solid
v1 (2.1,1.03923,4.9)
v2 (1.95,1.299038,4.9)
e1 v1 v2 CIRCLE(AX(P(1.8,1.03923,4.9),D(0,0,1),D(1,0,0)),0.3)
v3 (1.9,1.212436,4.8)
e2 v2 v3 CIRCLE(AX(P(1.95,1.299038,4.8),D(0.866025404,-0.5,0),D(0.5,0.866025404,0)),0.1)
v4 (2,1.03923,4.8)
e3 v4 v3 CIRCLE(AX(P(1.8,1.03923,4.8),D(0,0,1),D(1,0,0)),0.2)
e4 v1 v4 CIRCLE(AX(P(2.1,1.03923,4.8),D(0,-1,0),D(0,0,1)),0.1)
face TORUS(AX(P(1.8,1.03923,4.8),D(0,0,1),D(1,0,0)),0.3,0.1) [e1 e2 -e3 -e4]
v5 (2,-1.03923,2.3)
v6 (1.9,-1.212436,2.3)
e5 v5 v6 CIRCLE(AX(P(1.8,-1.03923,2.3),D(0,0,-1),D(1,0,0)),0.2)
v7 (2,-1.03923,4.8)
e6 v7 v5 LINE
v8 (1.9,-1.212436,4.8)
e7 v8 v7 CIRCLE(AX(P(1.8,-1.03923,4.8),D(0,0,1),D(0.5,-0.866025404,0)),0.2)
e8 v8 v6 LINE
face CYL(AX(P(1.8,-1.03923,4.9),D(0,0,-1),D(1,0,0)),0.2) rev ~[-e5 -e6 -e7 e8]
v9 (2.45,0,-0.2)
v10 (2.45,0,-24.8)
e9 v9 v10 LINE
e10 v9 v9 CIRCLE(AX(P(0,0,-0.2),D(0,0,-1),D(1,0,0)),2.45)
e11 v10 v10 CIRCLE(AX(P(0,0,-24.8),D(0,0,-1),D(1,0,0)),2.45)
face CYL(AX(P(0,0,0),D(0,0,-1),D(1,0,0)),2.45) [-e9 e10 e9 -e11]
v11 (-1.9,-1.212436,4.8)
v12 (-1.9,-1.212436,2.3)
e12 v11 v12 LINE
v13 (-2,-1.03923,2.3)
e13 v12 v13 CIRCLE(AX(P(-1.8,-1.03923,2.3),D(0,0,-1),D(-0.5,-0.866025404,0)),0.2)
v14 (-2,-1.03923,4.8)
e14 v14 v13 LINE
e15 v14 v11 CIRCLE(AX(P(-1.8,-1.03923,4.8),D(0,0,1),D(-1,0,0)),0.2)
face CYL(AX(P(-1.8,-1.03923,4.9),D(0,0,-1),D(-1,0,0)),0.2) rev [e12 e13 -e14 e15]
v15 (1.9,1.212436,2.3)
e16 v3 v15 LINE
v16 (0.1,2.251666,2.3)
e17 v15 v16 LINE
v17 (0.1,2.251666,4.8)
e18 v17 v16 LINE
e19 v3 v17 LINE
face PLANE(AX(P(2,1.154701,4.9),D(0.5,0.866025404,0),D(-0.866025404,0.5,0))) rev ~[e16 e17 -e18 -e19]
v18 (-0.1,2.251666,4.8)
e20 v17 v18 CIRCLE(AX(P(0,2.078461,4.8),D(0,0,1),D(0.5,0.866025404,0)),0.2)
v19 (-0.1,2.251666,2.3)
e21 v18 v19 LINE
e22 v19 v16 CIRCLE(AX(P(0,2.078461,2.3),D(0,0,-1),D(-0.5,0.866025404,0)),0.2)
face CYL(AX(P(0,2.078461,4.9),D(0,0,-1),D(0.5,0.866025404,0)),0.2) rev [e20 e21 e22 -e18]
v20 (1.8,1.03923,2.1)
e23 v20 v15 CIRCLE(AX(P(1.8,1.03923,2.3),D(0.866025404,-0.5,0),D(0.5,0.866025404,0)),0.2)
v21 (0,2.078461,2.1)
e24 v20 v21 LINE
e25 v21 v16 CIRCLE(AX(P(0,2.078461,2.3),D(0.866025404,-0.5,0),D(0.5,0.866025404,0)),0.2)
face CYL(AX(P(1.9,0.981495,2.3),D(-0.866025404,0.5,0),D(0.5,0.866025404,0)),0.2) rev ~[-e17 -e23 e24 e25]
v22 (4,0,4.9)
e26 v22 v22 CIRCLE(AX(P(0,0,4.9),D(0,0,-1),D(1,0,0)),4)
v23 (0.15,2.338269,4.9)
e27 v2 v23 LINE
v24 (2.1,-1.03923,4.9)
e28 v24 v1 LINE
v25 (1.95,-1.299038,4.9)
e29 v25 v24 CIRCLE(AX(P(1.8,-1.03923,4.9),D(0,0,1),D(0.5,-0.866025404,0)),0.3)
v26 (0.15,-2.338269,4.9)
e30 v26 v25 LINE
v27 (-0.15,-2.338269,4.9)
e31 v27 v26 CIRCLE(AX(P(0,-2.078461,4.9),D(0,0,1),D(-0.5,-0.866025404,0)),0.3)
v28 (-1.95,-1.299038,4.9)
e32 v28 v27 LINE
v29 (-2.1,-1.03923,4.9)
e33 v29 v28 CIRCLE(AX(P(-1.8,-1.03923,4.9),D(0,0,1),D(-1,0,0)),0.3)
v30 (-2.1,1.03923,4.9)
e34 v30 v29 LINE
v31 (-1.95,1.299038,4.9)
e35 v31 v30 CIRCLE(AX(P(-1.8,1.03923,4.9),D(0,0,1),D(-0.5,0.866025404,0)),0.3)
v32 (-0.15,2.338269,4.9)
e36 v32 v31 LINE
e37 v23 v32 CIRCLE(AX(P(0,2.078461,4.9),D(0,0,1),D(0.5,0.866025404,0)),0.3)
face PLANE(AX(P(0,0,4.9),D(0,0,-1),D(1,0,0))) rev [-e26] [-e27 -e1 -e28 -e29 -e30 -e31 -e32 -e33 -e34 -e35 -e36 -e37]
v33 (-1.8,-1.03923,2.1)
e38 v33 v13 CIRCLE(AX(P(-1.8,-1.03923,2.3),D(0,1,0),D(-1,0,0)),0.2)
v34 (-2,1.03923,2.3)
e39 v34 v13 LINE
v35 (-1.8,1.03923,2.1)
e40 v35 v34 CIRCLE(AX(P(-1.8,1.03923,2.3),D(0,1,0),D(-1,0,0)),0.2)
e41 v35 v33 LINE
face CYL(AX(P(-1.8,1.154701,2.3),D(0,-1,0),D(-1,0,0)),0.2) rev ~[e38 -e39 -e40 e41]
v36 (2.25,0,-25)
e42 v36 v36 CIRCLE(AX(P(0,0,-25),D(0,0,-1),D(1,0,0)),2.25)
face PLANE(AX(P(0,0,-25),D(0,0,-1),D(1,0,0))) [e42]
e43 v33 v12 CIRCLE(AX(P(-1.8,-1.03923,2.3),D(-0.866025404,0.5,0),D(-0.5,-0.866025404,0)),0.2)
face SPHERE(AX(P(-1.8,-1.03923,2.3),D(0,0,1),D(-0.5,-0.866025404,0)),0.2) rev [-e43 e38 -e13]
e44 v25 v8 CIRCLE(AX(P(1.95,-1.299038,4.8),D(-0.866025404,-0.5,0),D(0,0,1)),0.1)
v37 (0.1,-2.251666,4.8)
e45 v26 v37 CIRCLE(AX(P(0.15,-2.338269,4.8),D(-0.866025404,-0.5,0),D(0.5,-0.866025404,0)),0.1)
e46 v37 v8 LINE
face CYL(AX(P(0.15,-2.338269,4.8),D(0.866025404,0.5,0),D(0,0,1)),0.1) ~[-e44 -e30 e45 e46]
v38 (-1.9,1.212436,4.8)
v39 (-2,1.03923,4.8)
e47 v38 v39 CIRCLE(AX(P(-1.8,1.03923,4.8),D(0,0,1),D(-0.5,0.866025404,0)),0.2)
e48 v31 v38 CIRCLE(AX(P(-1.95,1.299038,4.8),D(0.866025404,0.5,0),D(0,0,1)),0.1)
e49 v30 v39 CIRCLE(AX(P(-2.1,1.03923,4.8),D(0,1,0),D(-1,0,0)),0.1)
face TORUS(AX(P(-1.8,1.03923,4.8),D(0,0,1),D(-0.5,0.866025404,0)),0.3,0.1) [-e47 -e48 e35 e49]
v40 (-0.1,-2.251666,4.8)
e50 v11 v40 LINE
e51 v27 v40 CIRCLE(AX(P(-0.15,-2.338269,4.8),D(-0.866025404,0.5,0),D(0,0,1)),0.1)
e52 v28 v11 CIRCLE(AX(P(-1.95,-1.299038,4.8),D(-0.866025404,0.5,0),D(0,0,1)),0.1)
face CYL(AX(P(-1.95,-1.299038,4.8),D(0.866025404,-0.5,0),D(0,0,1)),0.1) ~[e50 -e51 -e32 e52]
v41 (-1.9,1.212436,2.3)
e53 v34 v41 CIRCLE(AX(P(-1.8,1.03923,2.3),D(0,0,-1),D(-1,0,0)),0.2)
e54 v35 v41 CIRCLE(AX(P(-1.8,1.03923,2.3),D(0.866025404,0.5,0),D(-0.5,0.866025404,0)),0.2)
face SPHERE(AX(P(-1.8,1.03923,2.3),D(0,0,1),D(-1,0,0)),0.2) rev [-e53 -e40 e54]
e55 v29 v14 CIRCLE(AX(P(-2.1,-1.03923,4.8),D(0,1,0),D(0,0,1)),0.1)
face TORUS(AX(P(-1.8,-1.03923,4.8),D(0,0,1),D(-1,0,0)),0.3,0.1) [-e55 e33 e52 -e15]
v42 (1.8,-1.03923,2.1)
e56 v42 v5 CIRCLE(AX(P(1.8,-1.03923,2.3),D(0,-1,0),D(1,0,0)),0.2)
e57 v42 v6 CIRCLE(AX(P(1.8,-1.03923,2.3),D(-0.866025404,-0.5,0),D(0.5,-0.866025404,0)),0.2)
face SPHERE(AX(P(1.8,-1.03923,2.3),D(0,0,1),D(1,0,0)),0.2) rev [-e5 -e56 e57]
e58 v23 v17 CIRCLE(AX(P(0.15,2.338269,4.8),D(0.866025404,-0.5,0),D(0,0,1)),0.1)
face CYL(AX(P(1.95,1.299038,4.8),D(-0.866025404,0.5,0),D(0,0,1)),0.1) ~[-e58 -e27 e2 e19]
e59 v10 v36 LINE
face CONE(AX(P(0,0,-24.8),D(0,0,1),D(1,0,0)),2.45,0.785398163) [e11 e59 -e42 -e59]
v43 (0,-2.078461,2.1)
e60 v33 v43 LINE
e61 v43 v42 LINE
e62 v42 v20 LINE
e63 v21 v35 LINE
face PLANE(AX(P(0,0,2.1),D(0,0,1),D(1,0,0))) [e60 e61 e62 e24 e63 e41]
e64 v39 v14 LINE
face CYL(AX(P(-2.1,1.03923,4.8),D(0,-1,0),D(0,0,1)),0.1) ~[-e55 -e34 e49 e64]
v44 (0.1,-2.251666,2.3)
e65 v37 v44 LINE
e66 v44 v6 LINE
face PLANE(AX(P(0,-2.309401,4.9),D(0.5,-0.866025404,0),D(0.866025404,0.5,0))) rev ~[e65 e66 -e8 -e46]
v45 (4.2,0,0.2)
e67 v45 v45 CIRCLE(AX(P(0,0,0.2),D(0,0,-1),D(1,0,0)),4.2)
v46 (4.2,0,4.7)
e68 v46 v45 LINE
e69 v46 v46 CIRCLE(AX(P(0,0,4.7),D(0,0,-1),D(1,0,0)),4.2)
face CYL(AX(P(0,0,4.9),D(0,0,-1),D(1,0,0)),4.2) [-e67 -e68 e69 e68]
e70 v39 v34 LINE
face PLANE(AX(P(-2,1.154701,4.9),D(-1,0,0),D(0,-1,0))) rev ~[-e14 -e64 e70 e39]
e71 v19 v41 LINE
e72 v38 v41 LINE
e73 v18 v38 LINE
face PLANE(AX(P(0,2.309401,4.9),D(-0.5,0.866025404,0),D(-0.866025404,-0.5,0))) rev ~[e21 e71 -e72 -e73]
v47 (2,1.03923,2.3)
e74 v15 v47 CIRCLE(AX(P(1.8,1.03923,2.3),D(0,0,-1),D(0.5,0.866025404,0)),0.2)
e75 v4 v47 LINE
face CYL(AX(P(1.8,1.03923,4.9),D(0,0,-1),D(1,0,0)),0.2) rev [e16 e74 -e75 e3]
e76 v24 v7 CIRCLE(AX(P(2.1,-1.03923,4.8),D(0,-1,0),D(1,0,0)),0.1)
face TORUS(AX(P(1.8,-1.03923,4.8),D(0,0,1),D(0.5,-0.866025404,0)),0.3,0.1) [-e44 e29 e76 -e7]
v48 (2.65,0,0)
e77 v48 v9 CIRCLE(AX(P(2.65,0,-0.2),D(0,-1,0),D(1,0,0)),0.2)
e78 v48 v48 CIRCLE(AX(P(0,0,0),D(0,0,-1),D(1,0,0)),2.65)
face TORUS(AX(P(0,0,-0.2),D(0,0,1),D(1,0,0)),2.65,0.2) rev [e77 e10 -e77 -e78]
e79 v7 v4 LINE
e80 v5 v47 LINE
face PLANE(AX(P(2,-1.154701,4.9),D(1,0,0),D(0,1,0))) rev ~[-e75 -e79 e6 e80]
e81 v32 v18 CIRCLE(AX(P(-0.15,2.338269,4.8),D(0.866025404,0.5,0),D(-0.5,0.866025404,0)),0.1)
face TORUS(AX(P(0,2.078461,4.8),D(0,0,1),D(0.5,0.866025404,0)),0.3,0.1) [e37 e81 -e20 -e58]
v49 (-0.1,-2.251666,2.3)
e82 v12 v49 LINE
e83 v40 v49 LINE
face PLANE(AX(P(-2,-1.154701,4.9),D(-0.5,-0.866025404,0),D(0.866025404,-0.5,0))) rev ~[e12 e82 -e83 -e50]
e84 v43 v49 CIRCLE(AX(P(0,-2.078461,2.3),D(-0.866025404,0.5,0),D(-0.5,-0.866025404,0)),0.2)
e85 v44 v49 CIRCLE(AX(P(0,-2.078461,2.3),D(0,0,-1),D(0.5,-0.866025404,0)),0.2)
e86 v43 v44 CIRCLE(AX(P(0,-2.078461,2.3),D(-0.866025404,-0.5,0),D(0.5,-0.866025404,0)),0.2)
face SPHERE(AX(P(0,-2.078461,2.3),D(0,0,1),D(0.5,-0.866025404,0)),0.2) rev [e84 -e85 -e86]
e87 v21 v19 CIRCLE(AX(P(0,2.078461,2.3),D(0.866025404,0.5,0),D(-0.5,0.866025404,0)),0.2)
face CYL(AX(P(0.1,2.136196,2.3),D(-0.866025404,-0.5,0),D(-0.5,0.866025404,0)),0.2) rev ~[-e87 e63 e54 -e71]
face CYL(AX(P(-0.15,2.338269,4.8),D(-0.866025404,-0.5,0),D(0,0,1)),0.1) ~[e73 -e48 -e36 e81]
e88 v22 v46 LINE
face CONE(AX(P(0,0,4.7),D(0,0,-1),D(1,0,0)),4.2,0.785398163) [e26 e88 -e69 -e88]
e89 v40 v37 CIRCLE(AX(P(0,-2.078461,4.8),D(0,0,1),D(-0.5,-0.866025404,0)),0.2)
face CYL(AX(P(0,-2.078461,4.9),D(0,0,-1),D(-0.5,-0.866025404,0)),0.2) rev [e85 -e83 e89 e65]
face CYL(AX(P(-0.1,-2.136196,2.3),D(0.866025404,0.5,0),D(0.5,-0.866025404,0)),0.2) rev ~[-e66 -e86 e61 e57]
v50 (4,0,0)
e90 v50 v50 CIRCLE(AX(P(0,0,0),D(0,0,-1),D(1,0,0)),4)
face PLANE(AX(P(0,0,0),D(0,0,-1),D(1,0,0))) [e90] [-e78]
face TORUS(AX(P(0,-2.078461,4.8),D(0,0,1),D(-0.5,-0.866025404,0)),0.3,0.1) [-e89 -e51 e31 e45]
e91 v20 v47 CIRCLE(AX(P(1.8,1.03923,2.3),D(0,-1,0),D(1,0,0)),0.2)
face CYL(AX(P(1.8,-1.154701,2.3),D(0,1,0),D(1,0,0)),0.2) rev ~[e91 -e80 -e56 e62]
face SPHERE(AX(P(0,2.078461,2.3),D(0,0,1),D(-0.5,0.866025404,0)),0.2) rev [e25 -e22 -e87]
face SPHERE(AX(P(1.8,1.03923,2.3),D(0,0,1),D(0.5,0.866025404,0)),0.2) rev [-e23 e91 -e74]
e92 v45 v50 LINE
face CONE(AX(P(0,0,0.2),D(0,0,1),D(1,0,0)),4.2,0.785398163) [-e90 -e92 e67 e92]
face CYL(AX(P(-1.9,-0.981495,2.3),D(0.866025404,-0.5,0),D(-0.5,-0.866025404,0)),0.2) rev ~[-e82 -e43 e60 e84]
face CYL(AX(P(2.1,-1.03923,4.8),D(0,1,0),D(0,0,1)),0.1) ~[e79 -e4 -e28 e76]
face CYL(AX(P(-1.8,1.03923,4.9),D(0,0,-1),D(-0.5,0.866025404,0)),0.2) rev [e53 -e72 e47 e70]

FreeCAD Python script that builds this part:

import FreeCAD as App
import Part
import Sketcher

V = App.Vector
Q = App.Units.Quantity


def edges_at(feature, points):
    """Names of the edges that pass closest to the given points."""
    edges = feature.Shape.Edges
    near = lambda p: min(range(len(edges)), key=lambda i: edges[i].distToShape(Part.Vertex(*p))[0])
    return sorted({f"Edge{near(p) + 1}" for p in points})


def add_polygon(sketch, points):
    """Adds a closed chain of lines whose ends are joined by coincident constraints."""
    first, n = sketch.GeometryCount, len(points)
    for a, b in zip(points, points[1:] + points[:1]):
        sketch.addGeometry(Part.LineSegment(App.Vector(*a, 0), App.Vector(*b, 0)), False)
    for i in range(n):
        sketch.addConstraint(Sketcher.Constraint("Coincident", first + i, 2, first + (i + 1) % n, 1))

doc = App.newDocument("Part")
body = doc.addObject("PartDesign::Body", "Body")

# Sketch on YZ plane
sketch1 = body.newObject("Sketcher::SketchObject", "Sketch")
sketch1.AttachmentSupport = (doc.getObject("YZ_Plane"), [""])
sketch1.MapMode = "FlatFace"
add_polygon(sketch1, [(4.2, 4.9), (0, 4.9), (0, -25), (2.5, -25), (2.5, 0), (4.2, 0)])  # lines 0-5
sketch1.addConstraint(Sketcher.Constraint("Horizontal", 0))
sketch1.addConstraint(Sketcher.Constraint("Vertical", 1))
sketch1.addConstraint(Sketcher.Constraint("Horizontal", 2))
sketch1.addConstraint(Sketcher.Constraint("Vertical", 3))
sketch1.addConstraint(Sketcher.Constraint("Horizontal", 4))
sketch1.addConstraint(Sketcher.Constraint("Vertical", 5))
sketch1.addConstraint(Sketcher.Constraint("PointOnObject", 0, 2, -2))
sketch1.addConstraint(Sketcher.Constraint("PointOnObject", 3, 2, -1))
sketch1.addConstraint(Sketcher.Constraint("DistanceY", 3, 1, 3, 2, 25.0))
sketch1.addConstraint(Sketcher.Constraint("DistanceX", 0, 2, 0, 1, 4.2))
sketch1.addConstraint(Sketcher.Constraint("DistanceY", 1, 2, 1, 1, 29.9))
sketch1.addConstraint(Sketcher.Constraint("DistanceX", 2, 1, 2, 2, 2.45))
revolution = body.newObject("PartDesign::Revolution", "Revolution")
revolution.Profile = sketch1
revolution.ReferenceAxis = (sketch1, ["V_Axis"])
revolution.Angle = 360

# Sketch on XY plane
sketch2 = body.newObject("Sketcher::SketchObject", "Sketch001")
sketch2.AttachmentSupport = (doc.getObject("XY_Plane"), [""])
sketch2.MapMode = "FlatFace"
sketch2.AttachmentOffset = App.Placement(V(0, 0, 4.9), App.Rotation())
add_polygon(sketch2, [(2, -1.2), (2, 1.2), (0, 2.3), (-2, 1.2), (-2, -1.2), (0, -2.3)])  # lines 0-5
sketch2.addConstraint(Sketcher.Constraint("Vertical", 0))
sketch2.addConstraint(Sketcher.Constraint("Vertical", 3))
sketch2.addConstraint(Sketcher.Constraint("Symmetric", 0, 2, 3, 2, -1, 1))
sketch2.addConstraint(Sketcher.Constraint("Symmetric", 1, 2, 4, 2, -1, 1))
sketch2.addConstraint(Sketcher.Constraint("PointOnObject", 1, 2, -2))
sketch2.addConstraint(Sketcher.Constraint("Parallel", 2, 5))
sketch2.addConstraint(Sketcher.Constraint("Horizontal", 0, 2, 2, 2))
sketch2.addConstraint(Sketcher.Constraint("Angle", 1, Q("150 deg")))
sketch2.addConstraint(Sketcher.Constraint("DistanceX", -1, 1, 0, 2, 2.0))
sketch2.addConstraint(Sketcher.Constraint("DistanceY", 0, 1, 0, 2, 2.309401))
pocket1 = body.newObject("PartDesign::Pocket", "Pocket")
pocket1.Profile = sketch2
pocket1.Length = 2.8
doc.recompute()

chamfer = body.newObject("PartDesign::Chamfer", "Chamfer")
chamfer.Base = (pocket1, edges_at(pocket1, [(-2.45, 0, -25), (-4.2, 0, 0), (-4.2, 0, 4.9)]))
chamfer.Size = 0.2
doc.recompute()

fillet = body.newObject("PartDesign::Fillet", "Fillet")
fillet.Base = (chamfer, edges_at(chamfer, [
    (1, -1.732, 2.1),
    (2, -1.155, 3.5),
    (-1, -1.732, 2.1),
    (0, -2.309, 3.5),
    (-2, 0, 2.1),
    (-2, -1.155, 3.5),
    (-1, 1.732, 2.1),
    (-2, 1.155, 3.5),
    (1, 1.732, 2.1),
    (0, 2.309, 3.5),
    (2, 0, 2.1),
    (2, 1.155, 3.5),
    (-2.45, 0, 0),
]))
fillet.Radius = 0.2
doc.recompute()

fillet2 = body.newObject("PartDesign::Fillet", "Fillet001")
fillet2.Base = (fillet, edges_at(fillet, [
    (-1, -1.732, 4.9),
    (-2, 0, 4.9),
    (-1, 1.732, 4.9),
    (1, 1.732, 4.9),
    (2, 0, 4.9),
    (1, -1.732, 4.9),
    (-1.973, -1.139, 4.9),
    (0, -2.278, 4.9),
    (1.973, -1.139, 4.9),
    (1.973, 1.139, 4.9),
    (0, 2.278, 4.9),
    (-1.973, 1.139, 4.9),
]))
fillet2.Radius = 0.1

doc.recompute()
